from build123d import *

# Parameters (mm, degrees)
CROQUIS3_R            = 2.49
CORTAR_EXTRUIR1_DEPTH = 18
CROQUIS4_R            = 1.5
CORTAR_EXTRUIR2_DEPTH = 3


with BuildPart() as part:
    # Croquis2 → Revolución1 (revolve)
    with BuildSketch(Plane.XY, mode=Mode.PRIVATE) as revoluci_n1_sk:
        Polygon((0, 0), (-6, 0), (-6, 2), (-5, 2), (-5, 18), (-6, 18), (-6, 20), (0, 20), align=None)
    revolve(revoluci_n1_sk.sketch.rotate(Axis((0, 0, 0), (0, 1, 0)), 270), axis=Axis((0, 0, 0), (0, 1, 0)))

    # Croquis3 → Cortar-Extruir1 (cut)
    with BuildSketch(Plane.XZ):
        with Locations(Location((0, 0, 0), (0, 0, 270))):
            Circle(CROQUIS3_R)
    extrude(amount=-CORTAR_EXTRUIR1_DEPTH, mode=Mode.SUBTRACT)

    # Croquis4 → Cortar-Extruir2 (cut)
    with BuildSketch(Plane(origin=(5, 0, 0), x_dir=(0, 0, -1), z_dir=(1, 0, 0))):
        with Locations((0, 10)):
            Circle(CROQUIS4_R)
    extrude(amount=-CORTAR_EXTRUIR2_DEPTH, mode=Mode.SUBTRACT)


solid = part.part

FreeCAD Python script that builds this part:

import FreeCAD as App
import Part
import Sketcher

V = App.Vector
Q = App.Units.Quantity


def add_polygon(sketch, points):
    """Adds a closed chain of lines whose ends are joined by coincident constraints."""
    first, n = sketch.GeometryCount, len(points)
    for a, b in zip(points, points[1:] + points[:1]):
        sketch.addGeometry(Part.LineSegment(App.Vector(*a, 0), App.Vector(*b, 0)), False)
    for i in range(n):
        sketch.addConstraint(Sketcher.Constraint("Coincident", first + i, 2, first + (i + 1) % n, 1))

doc = App.newDocument("Part")
params = doc.addObject("Spreadsheet::Sheet", "Params")
for row, (alias, value) in enumerate([
    ("sketch1_width", "6 mm"),
    ("sketch1_width2", "1 mm"),
    ("sketch1_height", "20 mm"),
    ("sketch1_height2", "2 mm"),
    ("revolution_angle", "360 deg"),
    ("sketch2_diameter", "4.98 mm"),
    ("pocket1_length", "18 mm"),
    ("sketch3_diameter", "3 mm"),
    ("pocket2_length", "3 mm"),
], start=1):
    params.set(f"A{row}", alias)
    params.set(f"B{row}", "=" + value)
    params.setAlias(f"B{row}", alias)

body = doc.addObject("PartDesign::Body", "Body")

# Sketch on XY plane
sketch1 = body.newObject("Sketcher::SketchObject", "Sketch")
sketch1.AttachmentSupport = (doc.getObject("XY_Plane"), [""])
sketch1.MapMode = "FlatFace"
add_polygon(sketch1, [(-6, 0), (0, 0), (0, 20), (-6, 20), (-6, 18), (-5, 18), (-5, 2), (-6, 2)])  # lines 0-7
sketch1.addConstraint(Sketcher.Constraint("Horizontal", 0))
sketch1.addConstraint(Sketcher.Constraint("Vertical", 1))
sketch1.addConstraint(Sketcher.Constraint("Horizontal", 2))
sketch1.addConstraint(Sketcher.Constraint("Vertical", 3))
sketch1.addConstraint(Sketcher.Constraint("Horizontal", 4))
sketch1.addConstraint(Sketcher.Constraint("Vertical", 5))
sketch1.addConstraint(Sketcher.Constraint("Horizontal", 6))
sketch1.addConstraint(Sketcher.Constraint("Vertical", 7))
sketch1.addConstraint(Sketcher.Constraint("Coincident", 0, 2, -1, 1))
sketch1.addConstraint(Sketcher.Constraint("Vertical", 3, 2, 6, 2))
sketch1.addConstraint(Sketcher.Constraint("Equal", 3, 7))
sketch1.addConstraint(Sketcher.Constraint("DistanceX", 0, 1, 0, 2, Q("6 mm")))
sketch1.addConstraint(Sketcher.Constraint("DistanceX", 4, 1, 4, 2, Q("1 mm")))
sketch1.addConstraint(Sketcher.Constraint("DistanceY", 1, 1, 1, 2, Q("20 mm")))
sketch1.addConstraint(Sketcher.Constraint("DistanceY", 3, 2, 3, 1, Q("2 mm")))
sketch1.setExpression("Constraints[19]", "Params.sketch1_width")
sketch1.setExpression("Constraints[20]", "Params.sketch1_width2")
sketch1.setExpression("Constraints[21]", "Params.sketch1_height")
sketch1.setExpression("Constraints[22]", "Params.sketch1_height2")
revolution = body.newObject("PartDesign::Revolution", "Revolution")
revolution.Profile = sketch1
revolution.ReferenceAxis = (sketch1, ["V_Axis"])
revolution.setExpression("Angle", "Params.revolution_angle")

# Sketch on XZ plane
sketch2 = body.newObject("Sketcher::SketchObject", "Sketch001")
sketch2.AttachmentSupport = (doc.getObject("XZ_Plane"), [""])
sketch2.MapMode = "FlatFace"
sketch2.addGeometry(Part.Circle(V(0, 0, 0), V(0, 0, 1), 2.5), False)
sketch2.addConstraint(Sketcher.Constraint("Coincident", 0, 3, -1, 1))
sketch2.addConstraint(Sketcher.Constraint("Diameter", 0, Q("4.98 mm")))
sketch2.setExpression("Constraints[1]", "Params.sketch2_diameter")
pocket1 = body.newObject("PartDesign::Pocket", "Pocket")
pocket1.Profile = sketch2
pocket1.setExpression("Length", "Params.pocket1_length")

# Sketch on YZ plane
sketch3 = body.newObject("Sketcher::SketchObject", "Sketch002")
sketch3.AttachmentSupport = (doc.getObject("YZ_Plane"), [""])
sketch3.MapMode = "FlatFace"
sketch3.AttachmentOffset = App.Placement(V(0, 0, 5), App.Rotation())
sketch3.addGeometry(Part.Circle(V(10, 0, 0), V(0, 0, 1), 1.5), False)
sketch3.addConstraint(Sketcher.Constraint("PointOnObject", 0, 3, -1))
sketch3.addConstraint(Sketcher.Constraint("Diameter", 0, Q("3 mm")))
sketch3.addConstraint(Sketcher.Constraint("DistanceX", -1, 1, 0, 3, Q("10 mm")))
sketch3.setExpression("Constraints[1]", "Params.sketch3_diameter")
pocket2 = body.newObject("PartDesign::Pocket", "Pocket001")
pocket2.Profile = sketch3
pocket2.setExpression("Length", "Params.pocket2_length")

doc.recompute()
